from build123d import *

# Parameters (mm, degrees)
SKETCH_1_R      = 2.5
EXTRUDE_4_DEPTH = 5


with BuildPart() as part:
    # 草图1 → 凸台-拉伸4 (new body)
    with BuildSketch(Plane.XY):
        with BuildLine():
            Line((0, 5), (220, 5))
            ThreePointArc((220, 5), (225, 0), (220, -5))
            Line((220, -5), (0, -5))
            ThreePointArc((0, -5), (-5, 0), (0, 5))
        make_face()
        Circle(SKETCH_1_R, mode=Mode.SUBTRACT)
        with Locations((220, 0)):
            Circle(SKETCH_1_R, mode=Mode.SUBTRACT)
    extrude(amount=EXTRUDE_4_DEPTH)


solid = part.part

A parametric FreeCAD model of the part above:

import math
import FreeCAD as App
import Part
import Sketcher
from FreeCAD import Vector

doc = App.newDocument("Part")
body = doc.addObject("PartDesign::Body", "Body")

# Sketch on XY plane
sketch1 = body.newObject("Sketcher::SketchObject", "Sketch")
sketch1.AttachmentSupport = (doc.getObject("XY_Plane"), [""])
sketch1.MapMode = "FlatFace"
sketch1.addGeometry([
    Part.LineSegment(Vector(220, 5, 0), Vector(0, 5, 0)),  # 0
    Part.ArcOfCircle(Part.Circle(Vector(0, 0, 0), Vector(0, 0, 1), 5), math.radians(90), math.radians(270)),  # 1
    Part.LineSegment(Vector(0, -5, 0), Vector(220, -5, 0)),  # 2
    Part.ArcOfCircle(Part.Circle(Vector(220, 0, 0), Vector(0, 0, 1), 5), math.radians(-90), math.radians(90)),  # 3
    Part.Circle(Vector(220, 0, 0), Vector(0, 0, 1), 2.5),  # 4
    Part.Circle(Vector(0, 0, 0), Vector(0, 0, 1), 2.5),  # 5
], False)
sketch1.addConstraint([
    Sketcher.Constraint("Tangent", 0, 2, 1, 1),
    Sketcher.Constraint("Tangent", 1, 2, 2, 1),
    Sketcher.Constraint("Tangent", 2, 2, 3, 1),
    Sketcher.Constraint("Tangent", 3, 2, 0, 1),
    Sketcher.Constraint("Horizontal", 0),
    Sketcher.Constraint("Horizontal", 2),
    Sketcher.Constraint("Coincident", 1, 3, -1, 1),
    Sketcher.Constraint("Coincident", 5, 3, -1, 1),
    Sketcher.Constraint("Coincident", 4, 3, 3, 3),
    Sketcher.Constraint("Equal", 4, 5),
    Sketcher.Constraint("Diameter", 4, 5.0),
    Sketcher.Constraint("Radius", 1, 5.0),
    Sketcher.Constraint("DistanceX", 0, 2, 0, 1, 220.0),
])
pad1 = body.newObject("PartDesign::Pad", "Pad")
pad1.Profile = sketch1
pad1.Length = 5

doc.recompute()
